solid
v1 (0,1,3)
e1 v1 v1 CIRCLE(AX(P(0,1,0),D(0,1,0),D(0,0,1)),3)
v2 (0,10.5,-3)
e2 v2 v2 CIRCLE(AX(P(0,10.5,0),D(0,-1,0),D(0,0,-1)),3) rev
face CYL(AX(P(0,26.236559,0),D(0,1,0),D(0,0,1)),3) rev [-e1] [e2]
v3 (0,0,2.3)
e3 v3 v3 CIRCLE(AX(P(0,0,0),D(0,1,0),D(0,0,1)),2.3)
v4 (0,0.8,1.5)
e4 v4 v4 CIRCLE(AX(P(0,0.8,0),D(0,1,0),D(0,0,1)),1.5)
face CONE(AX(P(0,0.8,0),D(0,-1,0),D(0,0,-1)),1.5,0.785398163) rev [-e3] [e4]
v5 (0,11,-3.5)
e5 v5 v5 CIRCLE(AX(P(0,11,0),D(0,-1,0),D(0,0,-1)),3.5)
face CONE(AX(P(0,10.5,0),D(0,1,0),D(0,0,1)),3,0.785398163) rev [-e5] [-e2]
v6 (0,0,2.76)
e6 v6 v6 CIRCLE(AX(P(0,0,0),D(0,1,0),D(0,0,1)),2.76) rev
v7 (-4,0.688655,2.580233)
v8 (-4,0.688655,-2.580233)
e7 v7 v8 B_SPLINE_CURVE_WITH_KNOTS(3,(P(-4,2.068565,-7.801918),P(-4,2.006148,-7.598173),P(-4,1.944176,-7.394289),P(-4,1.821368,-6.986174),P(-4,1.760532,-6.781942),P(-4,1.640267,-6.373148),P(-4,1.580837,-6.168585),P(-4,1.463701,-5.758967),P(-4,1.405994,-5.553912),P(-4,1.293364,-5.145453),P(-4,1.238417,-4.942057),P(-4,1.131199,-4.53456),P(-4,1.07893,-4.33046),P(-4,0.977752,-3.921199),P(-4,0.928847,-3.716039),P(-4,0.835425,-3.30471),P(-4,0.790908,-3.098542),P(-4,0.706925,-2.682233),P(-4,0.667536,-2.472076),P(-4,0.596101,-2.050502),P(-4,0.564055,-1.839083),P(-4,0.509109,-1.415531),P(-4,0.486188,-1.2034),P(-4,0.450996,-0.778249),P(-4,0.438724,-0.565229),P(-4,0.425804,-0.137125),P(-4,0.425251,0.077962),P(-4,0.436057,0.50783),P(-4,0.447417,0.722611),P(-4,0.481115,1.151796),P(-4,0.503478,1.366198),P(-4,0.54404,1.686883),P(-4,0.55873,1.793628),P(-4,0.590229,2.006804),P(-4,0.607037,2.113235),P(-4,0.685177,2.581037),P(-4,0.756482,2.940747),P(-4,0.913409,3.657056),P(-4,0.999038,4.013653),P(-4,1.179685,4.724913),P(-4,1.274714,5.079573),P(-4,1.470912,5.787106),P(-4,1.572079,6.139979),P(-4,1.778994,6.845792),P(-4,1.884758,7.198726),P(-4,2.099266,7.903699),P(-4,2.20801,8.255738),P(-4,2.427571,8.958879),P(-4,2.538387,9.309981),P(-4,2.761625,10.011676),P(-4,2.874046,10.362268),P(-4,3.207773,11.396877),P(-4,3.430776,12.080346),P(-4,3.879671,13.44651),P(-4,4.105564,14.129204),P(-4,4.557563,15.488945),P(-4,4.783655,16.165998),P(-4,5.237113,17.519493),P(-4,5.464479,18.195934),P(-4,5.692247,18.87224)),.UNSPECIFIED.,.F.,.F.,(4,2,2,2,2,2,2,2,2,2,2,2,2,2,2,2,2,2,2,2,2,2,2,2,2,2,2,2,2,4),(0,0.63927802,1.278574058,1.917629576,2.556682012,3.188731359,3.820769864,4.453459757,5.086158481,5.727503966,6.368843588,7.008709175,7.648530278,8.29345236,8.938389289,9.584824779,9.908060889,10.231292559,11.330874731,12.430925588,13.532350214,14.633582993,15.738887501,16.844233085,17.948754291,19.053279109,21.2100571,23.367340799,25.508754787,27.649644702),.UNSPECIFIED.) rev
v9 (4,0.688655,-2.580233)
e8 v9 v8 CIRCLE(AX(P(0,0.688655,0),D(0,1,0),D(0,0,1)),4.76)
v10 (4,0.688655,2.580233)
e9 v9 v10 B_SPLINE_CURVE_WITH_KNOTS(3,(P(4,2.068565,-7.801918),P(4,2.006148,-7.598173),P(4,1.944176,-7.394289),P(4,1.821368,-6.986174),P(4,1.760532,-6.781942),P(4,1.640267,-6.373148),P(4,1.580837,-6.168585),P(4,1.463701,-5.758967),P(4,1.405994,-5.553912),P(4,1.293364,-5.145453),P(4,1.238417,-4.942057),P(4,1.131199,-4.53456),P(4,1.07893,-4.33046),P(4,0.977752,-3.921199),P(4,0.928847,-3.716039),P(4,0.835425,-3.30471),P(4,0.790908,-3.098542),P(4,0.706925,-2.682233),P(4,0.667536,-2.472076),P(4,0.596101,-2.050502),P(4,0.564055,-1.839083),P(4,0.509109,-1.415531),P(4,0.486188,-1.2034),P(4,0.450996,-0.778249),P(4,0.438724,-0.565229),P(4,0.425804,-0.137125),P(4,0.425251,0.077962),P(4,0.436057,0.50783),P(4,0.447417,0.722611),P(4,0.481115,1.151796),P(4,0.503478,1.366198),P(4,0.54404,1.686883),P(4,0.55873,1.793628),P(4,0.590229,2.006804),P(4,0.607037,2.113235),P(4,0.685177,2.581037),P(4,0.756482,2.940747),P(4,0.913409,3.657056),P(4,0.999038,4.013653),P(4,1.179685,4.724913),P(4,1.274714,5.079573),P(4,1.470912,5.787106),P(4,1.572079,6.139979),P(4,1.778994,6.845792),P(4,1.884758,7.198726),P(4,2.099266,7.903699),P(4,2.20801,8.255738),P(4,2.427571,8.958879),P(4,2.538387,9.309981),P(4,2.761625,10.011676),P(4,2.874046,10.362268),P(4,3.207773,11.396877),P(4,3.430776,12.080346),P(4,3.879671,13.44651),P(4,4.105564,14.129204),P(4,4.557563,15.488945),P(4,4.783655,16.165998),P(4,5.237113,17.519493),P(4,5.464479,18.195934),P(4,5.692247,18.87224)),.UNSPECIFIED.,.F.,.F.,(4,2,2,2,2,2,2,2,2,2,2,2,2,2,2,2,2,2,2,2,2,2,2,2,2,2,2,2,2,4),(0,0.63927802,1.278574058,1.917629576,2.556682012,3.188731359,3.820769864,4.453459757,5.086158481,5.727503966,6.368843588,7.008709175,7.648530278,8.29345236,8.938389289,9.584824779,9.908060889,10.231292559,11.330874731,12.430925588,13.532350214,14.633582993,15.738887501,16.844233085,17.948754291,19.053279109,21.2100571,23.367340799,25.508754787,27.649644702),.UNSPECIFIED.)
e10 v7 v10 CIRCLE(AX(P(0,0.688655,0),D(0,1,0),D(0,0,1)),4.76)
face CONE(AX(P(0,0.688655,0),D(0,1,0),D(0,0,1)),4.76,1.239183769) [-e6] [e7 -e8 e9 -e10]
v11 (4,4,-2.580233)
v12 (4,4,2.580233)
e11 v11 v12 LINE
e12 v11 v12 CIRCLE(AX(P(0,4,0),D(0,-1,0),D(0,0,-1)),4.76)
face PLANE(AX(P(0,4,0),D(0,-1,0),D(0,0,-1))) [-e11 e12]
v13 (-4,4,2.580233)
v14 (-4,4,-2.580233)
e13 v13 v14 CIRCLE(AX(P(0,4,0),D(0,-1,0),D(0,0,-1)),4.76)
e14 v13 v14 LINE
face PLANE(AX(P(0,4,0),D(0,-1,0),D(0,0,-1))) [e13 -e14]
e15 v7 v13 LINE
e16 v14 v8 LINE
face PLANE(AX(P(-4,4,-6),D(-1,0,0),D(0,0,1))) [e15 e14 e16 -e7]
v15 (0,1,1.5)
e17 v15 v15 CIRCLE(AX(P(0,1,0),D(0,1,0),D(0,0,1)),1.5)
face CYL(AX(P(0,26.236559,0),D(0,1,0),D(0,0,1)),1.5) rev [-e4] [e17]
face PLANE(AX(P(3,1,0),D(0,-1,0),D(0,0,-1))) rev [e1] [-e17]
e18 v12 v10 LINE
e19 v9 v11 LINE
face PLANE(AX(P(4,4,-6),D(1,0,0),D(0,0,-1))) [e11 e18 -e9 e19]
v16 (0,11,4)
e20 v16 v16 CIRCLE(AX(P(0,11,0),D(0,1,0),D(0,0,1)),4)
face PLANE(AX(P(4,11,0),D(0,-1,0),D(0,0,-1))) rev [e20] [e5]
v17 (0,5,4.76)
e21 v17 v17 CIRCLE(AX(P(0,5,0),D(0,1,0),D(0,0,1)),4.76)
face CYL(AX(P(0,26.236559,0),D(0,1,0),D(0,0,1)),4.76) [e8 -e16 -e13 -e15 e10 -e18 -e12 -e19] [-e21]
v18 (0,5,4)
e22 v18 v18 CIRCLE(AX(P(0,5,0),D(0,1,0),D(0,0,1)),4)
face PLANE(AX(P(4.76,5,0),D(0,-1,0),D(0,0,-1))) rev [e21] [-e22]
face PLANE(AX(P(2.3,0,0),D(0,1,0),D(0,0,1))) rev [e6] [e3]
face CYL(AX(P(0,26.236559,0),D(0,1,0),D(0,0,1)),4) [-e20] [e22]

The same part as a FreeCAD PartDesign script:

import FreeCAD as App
import Part
import Sketcher
Q = App.Units.Quantity


def edges_at(feature, points):
    """Names of the edges that pass closest to the given points."""
    edges = feature.Shape.Edges
    near = lambda p: min(range(len(edges)), key=lambda i: edges[i].distToShape(Part.Vertex(*p))[0])
    return sorted({f"Edge{near(p) + 1}" for p in points})


def add_polygon(sketch, points):
    """Adds a closed chain of lines whose ends are joined by coincident constraints."""
    first, n = sketch.GeometryCount, len(points)
    for a, b in zip(points, points[1:] + points[:1]):
        sketch.addGeometry(Part.LineSegment(App.Vector(*a, 0), App.Vector(*b, 0)), False)
    for i in range(n):
        sketch.addConstraint(Sketcher.Constraint("Coincident", first + i, 2, first + (i + 1) % n, 1))

doc = App.newDocument("Part")
body = doc.addObject("PartDesign::Body", "Body")

sketch1 = body.newObject("Sketcher::SketchObject", "Sketch")
sketch1.AttachmentSupport = (doc.getObject("XY_Plane"), [""])
sketch1.MapMode = "FlatFace"
add_polygon(sketch1, [(2.3, 0), (4.76, 0), (4.76, 5), (4, 5), (4, 11), (3, 11), (3, 1), (1.5, 1), (1.5, 0.8)])
sketch1.addConstraint(Sketcher.Constraint("Horizontal", 0))
sketch1.addConstraint(Sketcher.Constraint("Vertical", 1))
sketch1.addConstraint(Sketcher.Constraint("Horizontal", 2))
sketch1.addConstraint(Sketcher.Constraint("Vertical", 3))
sketch1.addConstraint(Sketcher.Constraint("Horizontal", 4))
sketch1.addConstraint(Sketcher.Constraint("Vertical", 5))
sketch1.addConstraint(Sketcher.Constraint("Horizontal", 6))
sketch1.addConstraint(Sketcher.Constraint("Vertical", 7))
sketch1.addConstraint(Sketcher.Constraint("PointOnObject", 0, 2, -1))
sketch1.addConstraint(Sketcher.Constraint("DistanceX", 4, 2, 4, 1, Q("1 mm")))
sketch1.addConstraint(Sketcher.Constraint("DistanceY", 1, 1, 1, 2, Q("5 mm")))
sketch1.addConstraint(Sketcher.Constraint("DistanceY", 3, 1, 3, 2, Q("6 mm")))
sketch1.addConstraint(Sketcher.Constraint("DistanceY", 5, 2, 5, 1, Q("10 mm")))
sketch1.addConstraint(Sketcher.Constraint("Angle", 8, Q("-45 deg")))
sketch1.addConstraint(Sketcher.Constraint("DistanceX", 6, 2, 6, 1, Q("1.5 mm")))
sketch1.addConstraint(Sketcher.Constraint("DistanceY", 7, 2, 7, 1, Q("0.2 mm")))
sketch1.addConstraint(Sketcher.Constraint("DistanceX", -1, 1, 2, 2, Q("4 mm")))
sketch1.addConstraint(Sketcher.Constraint("DistanceX", 0, 1, 0, 2, Q("2.46 mm")))
revolution = body.newObject("PartDesign::Revolution", "Revolution")
revolution.Profile = sketch1
revolution.ReferenceAxis = (sketch1, ["V_Axis"])
revolution.Angle = 360
doc.recompute()

chamfer = body.newObject("PartDesign::Chamfer", "Chamfer")
chamfer.Base = (revolution, edges_at(revolution, [(-4.76, 0, 0)]))
chamfer.ChamferType = "Two distances"
chamfer.Size = 2
chamfer.Size2 = 0.688655
doc.recompute()

chamfer2 = body.newObject("PartDesign::Chamfer", "Chamfer001")
chamfer2.Base = (chamfer, edges_at(chamfer, [(-3, 11, 0)]))
chamfer2.Size = 0.5

sketch2 = body.newObject("Sketcher::SketchObject", "Sketch001")
sketch2.AttachmentSupport = (doc.getObject("XZ_Plane"), [""])
sketch2.MapMode = "FlatFace"
add_polygon(sketch2, [(-7.499, 7.499), (-7.499, -7.499), (7.499, -7.499), (7.499, 7.499)])
add_polygon(sketch2, [(4, -6), (-4, -6), (-4, 6), (4, 6)])
sketch2.addConstraint(Sketcher.Constraint("Vertical", 0))
sketch2.addConstraint(Sketcher.Constraint("Horizontal", 1))
sketch2.addConstraint(Sketcher.Constraint("Vertical", 2))
sketch2.addConstraint(Sketcher.Constraint("Horizontal", 3))
sketch2.addConstraint(Sketcher.Constraint("Horizontal", 4))
sketch2.addConstraint(Sketcher.Constraint("Vertical", 5))
sketch2.addConstraint(Sketcher.Constraint("Horizontal", 6))
sketch2.addConstraint(Sketcher.Constraint("Vertical", 7))
sketch2.addConstraint(Sketcher.Constraint("Symmetric", 0, 2, 2, 2, -1, 1))
sketch2.addConstraint(Sketcher.Constraint("Symmetric", 4, 2, 6, 2, -1, 1))
sketch2.addConstraint(Sketcher.Constraint("Equal", 3, 0))
sketch2.addConstraint(Sketcher.Constraint("DistanceX", 4, 2, 4, 1, Q("8 mm")))
sketch2.addConstraint(Sketcher.Constraint("DistanceY", 5, 1, 5, 2, Q("12 mm")))
sketch2.addConstraint(Sketcher.Constraint("DistanceX", 1, 1, 1, 2, Q("14.998 mm")))
pocket1 = body.newObject("PartDesign::Pocket", "Pocket")
pocket1.Profile = sketch2
pocket1.Length = 4

doc.recompute()
